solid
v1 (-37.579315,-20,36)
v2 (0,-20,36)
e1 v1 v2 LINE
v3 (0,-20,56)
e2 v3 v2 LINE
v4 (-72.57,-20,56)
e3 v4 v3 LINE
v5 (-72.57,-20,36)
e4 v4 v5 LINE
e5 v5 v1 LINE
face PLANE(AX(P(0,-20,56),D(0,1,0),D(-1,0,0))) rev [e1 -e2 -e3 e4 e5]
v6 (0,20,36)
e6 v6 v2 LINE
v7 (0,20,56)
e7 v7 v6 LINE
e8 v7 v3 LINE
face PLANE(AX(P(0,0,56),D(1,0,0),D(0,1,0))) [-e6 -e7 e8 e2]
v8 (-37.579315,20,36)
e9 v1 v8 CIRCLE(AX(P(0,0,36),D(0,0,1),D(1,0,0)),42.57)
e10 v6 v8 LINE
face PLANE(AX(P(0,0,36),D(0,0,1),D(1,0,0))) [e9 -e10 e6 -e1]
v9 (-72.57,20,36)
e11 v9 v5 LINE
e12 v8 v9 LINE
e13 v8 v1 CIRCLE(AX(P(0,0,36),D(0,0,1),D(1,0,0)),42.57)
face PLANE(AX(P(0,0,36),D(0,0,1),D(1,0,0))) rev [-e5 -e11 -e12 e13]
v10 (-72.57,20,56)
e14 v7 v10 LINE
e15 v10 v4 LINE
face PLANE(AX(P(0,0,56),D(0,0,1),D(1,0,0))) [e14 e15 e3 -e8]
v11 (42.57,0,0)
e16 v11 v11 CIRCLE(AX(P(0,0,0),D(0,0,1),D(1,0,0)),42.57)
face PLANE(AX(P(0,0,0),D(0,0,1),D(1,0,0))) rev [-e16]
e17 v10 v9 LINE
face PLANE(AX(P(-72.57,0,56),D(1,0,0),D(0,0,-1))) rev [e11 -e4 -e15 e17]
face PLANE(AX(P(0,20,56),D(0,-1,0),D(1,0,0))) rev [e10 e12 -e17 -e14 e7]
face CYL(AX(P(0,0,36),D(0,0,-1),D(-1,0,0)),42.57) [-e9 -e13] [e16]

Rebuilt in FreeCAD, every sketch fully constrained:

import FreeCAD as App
import Part
import Sketcher

V = App.Vector
Q = App.Units.Quantity


def add_polygon(sketch, points):
    """Adds a closed chain of lines whose ends are joined by coincident constraints."""
    first, n = sketch.GeometryCount, len(points)
    for a, b in zip(points, points[1:] + points[:1]):
        sketch.addGeometry(Part.LineSegment(App.Vector(*a, 0), App.Vector(*b, 0)), False)
    for i in range(n):
        sketch.addConstraint(Sketcher.Constraint("Coincident", first + i, 2, first + (i + 1) % n, 1))

doc = App.newDocument("Part")
body = doc.addObject("PartDesign::Body", "Body")

sketch1 = body.newObject("Sketcher::SketchObject", "Sketch")
sketch1.AttachmentSupport = (doc.getObject("XY_Plane"), [""])
sketch1.MapMode = "FlatFace"
sketch1.addGeometry(Part.Circle(V(0, 0, 0), V(0, 0, 1), 42.57), False)
sketch1.addConstraint([
    Sketcher.Constraint("Coincident", 0, 3, -1, 1),
    Sketcher.Constraint("Diameter", 0, Q("85.14 mm")),
])
pad1 = body.newObject("PartDesign::Pad", "Pad")
pad1.Profile = sketch1
pad1.Length = 36

sketch2 = body.newObject("Sketcher::SketchObject", "Sketch001")
sketch2.AttachmentSupport = (doc.getObject("XY_Plane"), [""])
sketch2.MapMode = "FlatFace"
sketch2.AttachmentOffset = App.Placement(V(0, 0, 36), App.Rotation())
add_polygon(sketch2, [(-72.57, 20), (-72.57, -20), (0, -20), (0, 20)])
sketch2.addConstraint([
    Sketcher.Constraint("Vertical", 0),
    Sketcher.Constraint("Horizontal", 1),
    Sketcher.Constraint("Vertical", 2),
    Sketcher.Constraint("Horizontal", 3),
    Sketcher.Constraint("Symmetric", 1, 2, 2, 2, -1, 1),
    Sketcher.Constraint("DistanceY", 0, 2, 0, 1, Q("40 mm")),
    Sketcher.Constraint("DistanceX", 1, 1, 1, 2, Q("72.57 mm")),
])
pad2 = body.newObject("PartDesign::Pad", "Pad001")
pad2.Profile = sketch2
pad2.Length = 20

doc.recompute()
